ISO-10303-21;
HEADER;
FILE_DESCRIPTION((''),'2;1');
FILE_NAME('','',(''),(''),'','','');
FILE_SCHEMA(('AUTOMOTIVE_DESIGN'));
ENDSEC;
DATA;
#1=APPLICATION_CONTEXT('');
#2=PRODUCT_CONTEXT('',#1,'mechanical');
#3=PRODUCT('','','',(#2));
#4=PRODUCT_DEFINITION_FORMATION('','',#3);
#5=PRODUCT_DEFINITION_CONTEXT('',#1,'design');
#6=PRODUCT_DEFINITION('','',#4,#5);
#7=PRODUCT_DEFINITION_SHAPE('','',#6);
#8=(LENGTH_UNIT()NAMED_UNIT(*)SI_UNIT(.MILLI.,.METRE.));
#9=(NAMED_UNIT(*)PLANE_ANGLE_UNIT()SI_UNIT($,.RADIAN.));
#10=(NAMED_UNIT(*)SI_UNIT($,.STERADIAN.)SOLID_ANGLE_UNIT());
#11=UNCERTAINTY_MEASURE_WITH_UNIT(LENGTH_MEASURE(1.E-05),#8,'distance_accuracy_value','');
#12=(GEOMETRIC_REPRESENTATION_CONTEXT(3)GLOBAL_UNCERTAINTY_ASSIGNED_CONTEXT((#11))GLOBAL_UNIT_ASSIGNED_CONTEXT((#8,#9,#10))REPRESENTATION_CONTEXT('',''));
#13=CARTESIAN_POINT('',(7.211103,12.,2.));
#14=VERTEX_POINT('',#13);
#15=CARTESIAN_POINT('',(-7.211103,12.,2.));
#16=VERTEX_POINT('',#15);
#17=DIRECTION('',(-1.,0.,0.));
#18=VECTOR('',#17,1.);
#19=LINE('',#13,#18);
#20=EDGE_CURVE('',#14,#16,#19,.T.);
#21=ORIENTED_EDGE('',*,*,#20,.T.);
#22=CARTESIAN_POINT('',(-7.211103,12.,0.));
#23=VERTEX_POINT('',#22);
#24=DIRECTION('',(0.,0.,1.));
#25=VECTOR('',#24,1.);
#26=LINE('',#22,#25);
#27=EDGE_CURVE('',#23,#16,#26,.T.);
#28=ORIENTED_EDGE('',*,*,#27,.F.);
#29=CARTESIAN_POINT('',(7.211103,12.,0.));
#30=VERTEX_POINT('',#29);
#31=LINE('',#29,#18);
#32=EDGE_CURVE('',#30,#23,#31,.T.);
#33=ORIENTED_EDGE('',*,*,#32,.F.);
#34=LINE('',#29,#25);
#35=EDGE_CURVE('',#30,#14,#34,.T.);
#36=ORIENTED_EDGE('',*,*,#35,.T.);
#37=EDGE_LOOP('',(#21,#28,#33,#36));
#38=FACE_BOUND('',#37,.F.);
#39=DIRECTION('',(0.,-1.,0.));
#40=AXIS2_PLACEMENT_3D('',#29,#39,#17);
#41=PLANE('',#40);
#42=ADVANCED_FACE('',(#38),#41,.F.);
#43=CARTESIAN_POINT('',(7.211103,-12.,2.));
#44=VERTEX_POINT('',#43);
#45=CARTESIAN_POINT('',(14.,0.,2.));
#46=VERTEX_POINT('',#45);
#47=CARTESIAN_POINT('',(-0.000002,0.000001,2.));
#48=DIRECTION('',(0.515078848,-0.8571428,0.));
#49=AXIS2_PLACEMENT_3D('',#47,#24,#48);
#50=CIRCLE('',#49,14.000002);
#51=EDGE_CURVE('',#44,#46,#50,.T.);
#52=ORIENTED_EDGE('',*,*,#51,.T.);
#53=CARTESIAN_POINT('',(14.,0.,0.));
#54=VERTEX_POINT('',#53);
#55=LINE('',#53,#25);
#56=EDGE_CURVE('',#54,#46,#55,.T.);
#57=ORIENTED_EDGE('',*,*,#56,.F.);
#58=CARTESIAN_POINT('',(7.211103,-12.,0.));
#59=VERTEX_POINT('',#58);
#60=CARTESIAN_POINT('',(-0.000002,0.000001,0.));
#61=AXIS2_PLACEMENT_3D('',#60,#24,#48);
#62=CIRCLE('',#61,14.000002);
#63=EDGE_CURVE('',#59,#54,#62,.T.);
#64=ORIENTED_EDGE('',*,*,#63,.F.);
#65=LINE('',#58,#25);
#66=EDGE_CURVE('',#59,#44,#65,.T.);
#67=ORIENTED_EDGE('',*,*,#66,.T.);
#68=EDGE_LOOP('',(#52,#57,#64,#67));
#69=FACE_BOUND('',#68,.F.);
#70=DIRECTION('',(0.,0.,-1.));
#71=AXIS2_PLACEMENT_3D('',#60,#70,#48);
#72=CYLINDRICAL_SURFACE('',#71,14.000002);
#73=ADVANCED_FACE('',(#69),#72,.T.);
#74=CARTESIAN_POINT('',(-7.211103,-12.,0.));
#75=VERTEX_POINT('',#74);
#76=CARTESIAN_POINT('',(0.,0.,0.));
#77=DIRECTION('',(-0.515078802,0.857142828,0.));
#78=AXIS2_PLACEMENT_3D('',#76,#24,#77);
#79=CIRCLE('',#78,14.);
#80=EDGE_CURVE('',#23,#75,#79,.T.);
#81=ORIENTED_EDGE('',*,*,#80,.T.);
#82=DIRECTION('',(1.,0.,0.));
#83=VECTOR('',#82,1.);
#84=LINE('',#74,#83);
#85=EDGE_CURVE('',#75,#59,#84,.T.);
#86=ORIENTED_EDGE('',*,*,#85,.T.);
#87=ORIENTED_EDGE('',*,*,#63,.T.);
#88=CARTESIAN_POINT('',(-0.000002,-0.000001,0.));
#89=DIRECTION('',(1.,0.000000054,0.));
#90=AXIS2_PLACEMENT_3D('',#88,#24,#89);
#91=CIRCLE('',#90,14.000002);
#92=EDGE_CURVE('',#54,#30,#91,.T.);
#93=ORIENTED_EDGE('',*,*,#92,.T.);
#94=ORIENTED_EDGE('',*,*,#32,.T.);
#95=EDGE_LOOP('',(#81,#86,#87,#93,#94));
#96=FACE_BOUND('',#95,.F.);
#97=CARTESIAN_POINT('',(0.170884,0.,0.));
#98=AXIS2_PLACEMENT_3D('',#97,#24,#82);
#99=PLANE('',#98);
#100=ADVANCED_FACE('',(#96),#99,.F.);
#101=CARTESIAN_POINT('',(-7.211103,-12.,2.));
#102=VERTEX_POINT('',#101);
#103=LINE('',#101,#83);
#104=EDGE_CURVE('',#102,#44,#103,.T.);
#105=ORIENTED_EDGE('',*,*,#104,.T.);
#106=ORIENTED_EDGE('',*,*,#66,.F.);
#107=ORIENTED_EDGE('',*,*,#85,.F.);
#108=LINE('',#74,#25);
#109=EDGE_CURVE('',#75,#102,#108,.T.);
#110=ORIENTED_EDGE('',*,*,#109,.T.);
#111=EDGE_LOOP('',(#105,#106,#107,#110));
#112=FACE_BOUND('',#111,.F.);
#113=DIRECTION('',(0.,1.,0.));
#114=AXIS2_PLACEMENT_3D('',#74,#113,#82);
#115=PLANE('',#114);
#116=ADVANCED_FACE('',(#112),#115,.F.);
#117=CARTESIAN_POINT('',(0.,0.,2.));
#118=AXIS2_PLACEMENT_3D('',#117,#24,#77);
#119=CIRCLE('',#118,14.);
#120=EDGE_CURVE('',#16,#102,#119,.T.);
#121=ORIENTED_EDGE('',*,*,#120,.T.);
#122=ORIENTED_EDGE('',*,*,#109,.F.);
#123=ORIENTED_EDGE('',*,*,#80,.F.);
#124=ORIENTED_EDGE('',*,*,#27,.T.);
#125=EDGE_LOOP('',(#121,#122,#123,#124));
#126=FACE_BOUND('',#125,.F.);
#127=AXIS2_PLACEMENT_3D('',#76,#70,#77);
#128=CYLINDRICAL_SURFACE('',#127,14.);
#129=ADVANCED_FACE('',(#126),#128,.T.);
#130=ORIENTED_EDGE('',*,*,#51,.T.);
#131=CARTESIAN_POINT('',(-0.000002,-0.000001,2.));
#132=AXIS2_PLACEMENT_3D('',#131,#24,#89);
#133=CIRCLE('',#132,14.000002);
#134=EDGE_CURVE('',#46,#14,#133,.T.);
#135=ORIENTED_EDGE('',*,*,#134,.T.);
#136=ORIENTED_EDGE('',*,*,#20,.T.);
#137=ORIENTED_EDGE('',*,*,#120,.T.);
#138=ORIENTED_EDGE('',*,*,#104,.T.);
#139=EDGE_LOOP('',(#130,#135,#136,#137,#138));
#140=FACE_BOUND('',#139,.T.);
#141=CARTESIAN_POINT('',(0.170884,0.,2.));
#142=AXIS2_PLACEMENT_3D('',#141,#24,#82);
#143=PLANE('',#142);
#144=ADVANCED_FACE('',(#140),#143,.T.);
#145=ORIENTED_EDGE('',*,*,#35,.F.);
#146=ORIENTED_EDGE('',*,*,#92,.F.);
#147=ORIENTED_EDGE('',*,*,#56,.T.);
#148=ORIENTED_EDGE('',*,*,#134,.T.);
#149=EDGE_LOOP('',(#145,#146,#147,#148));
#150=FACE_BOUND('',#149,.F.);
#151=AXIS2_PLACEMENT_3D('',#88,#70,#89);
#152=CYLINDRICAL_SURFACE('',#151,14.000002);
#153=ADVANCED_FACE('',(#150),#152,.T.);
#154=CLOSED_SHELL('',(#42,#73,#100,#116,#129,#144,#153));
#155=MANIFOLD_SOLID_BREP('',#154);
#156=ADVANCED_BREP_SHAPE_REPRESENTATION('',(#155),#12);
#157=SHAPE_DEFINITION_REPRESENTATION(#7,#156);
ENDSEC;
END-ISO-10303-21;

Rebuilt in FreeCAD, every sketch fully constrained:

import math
import FreeCAD as App
import Part
import Sketcher
from FreeCAD import Vector

doc = App.newDocument("Part")
body = doc.addObject("PartDesign::Body", "Body")

# Sketch on XY plane
sketch1 = doc.addObject("Sketcher::SketchObject", "Sketch")
body.addObject(sketch1)
sketch1.AttachmentSupport = (doc.XY_Plane, [""])
sketch1.MapMode = "FlatFace"
sketch1.addGeometry([
    Part.ArcOfCircle(Part.Circle(Vector(0, 0, 0), Vector(0, 0, 1), 14), math.radians(-59), math.radians(0)),  # 0
    Part.ArcOfCircle(Part.Circle(Vector(0, 0, 0), Vector(0, 0, 1), 14), math.radians(0), math.radians(59)),  # 1
    Part.LineSegment(Vector(7, 12, 0), Vector(-7, 12, 0)),  # 2
    Part.ArcOfCircle(Part.Circle(Vector(0, 0, 0), Vector(0, 0, 1), 14), math.radians(121), math.radians(239)),  # 3
    Part.LineSegment(Vector(-7, -12, 0), Vector(7, -12, 0)),  # 4
], False)
sketch1.addConstraint([
    Sketcher.Constraint("Tangent", 0, 2, 1, 1),
    Sketcher.Constraint("Coincident", 1, 2, 2, 1),
    Sketcher.Constraint("Coincident", 2, 2, 3, 1),
    Sketcher.Constraint("Coincident", 3, 2, 4, 1),
    Sketcher.Constraint("Coincident", 4, 2, 0, 1),
    Sketcher.Constraint("Horizontal", 2),
    Sketcher.Constraint("Horizontal", 4),
    Sketcher.Constraint("Coincident", 0, 3, -1, 1),
    Sketcher.Constraint("Coincident", 3, 3, -1, 1),
    Sketcher.Constraint("Equal", 0, 1),
    Sketcher.Constraint("Equal", 1, 3),
    Sketcher.Constraint("PointOnObject", 0, 2, -1),
    Sketcher.Constraint("Vertical", 2, 2, 3, 2),
    Sketcher.Constraint("Radius", 0, 14.000002),
    Sketcher.Constraint("DistanceY", -1, 1, 1, 2, 12.0),
])
pad1 = doc.addObject("PartDesign::Pad", "Pad")
body.addObject(pad1)
pad1.Profile = sketch1
pad1.Length = 2

doc.recompute()
